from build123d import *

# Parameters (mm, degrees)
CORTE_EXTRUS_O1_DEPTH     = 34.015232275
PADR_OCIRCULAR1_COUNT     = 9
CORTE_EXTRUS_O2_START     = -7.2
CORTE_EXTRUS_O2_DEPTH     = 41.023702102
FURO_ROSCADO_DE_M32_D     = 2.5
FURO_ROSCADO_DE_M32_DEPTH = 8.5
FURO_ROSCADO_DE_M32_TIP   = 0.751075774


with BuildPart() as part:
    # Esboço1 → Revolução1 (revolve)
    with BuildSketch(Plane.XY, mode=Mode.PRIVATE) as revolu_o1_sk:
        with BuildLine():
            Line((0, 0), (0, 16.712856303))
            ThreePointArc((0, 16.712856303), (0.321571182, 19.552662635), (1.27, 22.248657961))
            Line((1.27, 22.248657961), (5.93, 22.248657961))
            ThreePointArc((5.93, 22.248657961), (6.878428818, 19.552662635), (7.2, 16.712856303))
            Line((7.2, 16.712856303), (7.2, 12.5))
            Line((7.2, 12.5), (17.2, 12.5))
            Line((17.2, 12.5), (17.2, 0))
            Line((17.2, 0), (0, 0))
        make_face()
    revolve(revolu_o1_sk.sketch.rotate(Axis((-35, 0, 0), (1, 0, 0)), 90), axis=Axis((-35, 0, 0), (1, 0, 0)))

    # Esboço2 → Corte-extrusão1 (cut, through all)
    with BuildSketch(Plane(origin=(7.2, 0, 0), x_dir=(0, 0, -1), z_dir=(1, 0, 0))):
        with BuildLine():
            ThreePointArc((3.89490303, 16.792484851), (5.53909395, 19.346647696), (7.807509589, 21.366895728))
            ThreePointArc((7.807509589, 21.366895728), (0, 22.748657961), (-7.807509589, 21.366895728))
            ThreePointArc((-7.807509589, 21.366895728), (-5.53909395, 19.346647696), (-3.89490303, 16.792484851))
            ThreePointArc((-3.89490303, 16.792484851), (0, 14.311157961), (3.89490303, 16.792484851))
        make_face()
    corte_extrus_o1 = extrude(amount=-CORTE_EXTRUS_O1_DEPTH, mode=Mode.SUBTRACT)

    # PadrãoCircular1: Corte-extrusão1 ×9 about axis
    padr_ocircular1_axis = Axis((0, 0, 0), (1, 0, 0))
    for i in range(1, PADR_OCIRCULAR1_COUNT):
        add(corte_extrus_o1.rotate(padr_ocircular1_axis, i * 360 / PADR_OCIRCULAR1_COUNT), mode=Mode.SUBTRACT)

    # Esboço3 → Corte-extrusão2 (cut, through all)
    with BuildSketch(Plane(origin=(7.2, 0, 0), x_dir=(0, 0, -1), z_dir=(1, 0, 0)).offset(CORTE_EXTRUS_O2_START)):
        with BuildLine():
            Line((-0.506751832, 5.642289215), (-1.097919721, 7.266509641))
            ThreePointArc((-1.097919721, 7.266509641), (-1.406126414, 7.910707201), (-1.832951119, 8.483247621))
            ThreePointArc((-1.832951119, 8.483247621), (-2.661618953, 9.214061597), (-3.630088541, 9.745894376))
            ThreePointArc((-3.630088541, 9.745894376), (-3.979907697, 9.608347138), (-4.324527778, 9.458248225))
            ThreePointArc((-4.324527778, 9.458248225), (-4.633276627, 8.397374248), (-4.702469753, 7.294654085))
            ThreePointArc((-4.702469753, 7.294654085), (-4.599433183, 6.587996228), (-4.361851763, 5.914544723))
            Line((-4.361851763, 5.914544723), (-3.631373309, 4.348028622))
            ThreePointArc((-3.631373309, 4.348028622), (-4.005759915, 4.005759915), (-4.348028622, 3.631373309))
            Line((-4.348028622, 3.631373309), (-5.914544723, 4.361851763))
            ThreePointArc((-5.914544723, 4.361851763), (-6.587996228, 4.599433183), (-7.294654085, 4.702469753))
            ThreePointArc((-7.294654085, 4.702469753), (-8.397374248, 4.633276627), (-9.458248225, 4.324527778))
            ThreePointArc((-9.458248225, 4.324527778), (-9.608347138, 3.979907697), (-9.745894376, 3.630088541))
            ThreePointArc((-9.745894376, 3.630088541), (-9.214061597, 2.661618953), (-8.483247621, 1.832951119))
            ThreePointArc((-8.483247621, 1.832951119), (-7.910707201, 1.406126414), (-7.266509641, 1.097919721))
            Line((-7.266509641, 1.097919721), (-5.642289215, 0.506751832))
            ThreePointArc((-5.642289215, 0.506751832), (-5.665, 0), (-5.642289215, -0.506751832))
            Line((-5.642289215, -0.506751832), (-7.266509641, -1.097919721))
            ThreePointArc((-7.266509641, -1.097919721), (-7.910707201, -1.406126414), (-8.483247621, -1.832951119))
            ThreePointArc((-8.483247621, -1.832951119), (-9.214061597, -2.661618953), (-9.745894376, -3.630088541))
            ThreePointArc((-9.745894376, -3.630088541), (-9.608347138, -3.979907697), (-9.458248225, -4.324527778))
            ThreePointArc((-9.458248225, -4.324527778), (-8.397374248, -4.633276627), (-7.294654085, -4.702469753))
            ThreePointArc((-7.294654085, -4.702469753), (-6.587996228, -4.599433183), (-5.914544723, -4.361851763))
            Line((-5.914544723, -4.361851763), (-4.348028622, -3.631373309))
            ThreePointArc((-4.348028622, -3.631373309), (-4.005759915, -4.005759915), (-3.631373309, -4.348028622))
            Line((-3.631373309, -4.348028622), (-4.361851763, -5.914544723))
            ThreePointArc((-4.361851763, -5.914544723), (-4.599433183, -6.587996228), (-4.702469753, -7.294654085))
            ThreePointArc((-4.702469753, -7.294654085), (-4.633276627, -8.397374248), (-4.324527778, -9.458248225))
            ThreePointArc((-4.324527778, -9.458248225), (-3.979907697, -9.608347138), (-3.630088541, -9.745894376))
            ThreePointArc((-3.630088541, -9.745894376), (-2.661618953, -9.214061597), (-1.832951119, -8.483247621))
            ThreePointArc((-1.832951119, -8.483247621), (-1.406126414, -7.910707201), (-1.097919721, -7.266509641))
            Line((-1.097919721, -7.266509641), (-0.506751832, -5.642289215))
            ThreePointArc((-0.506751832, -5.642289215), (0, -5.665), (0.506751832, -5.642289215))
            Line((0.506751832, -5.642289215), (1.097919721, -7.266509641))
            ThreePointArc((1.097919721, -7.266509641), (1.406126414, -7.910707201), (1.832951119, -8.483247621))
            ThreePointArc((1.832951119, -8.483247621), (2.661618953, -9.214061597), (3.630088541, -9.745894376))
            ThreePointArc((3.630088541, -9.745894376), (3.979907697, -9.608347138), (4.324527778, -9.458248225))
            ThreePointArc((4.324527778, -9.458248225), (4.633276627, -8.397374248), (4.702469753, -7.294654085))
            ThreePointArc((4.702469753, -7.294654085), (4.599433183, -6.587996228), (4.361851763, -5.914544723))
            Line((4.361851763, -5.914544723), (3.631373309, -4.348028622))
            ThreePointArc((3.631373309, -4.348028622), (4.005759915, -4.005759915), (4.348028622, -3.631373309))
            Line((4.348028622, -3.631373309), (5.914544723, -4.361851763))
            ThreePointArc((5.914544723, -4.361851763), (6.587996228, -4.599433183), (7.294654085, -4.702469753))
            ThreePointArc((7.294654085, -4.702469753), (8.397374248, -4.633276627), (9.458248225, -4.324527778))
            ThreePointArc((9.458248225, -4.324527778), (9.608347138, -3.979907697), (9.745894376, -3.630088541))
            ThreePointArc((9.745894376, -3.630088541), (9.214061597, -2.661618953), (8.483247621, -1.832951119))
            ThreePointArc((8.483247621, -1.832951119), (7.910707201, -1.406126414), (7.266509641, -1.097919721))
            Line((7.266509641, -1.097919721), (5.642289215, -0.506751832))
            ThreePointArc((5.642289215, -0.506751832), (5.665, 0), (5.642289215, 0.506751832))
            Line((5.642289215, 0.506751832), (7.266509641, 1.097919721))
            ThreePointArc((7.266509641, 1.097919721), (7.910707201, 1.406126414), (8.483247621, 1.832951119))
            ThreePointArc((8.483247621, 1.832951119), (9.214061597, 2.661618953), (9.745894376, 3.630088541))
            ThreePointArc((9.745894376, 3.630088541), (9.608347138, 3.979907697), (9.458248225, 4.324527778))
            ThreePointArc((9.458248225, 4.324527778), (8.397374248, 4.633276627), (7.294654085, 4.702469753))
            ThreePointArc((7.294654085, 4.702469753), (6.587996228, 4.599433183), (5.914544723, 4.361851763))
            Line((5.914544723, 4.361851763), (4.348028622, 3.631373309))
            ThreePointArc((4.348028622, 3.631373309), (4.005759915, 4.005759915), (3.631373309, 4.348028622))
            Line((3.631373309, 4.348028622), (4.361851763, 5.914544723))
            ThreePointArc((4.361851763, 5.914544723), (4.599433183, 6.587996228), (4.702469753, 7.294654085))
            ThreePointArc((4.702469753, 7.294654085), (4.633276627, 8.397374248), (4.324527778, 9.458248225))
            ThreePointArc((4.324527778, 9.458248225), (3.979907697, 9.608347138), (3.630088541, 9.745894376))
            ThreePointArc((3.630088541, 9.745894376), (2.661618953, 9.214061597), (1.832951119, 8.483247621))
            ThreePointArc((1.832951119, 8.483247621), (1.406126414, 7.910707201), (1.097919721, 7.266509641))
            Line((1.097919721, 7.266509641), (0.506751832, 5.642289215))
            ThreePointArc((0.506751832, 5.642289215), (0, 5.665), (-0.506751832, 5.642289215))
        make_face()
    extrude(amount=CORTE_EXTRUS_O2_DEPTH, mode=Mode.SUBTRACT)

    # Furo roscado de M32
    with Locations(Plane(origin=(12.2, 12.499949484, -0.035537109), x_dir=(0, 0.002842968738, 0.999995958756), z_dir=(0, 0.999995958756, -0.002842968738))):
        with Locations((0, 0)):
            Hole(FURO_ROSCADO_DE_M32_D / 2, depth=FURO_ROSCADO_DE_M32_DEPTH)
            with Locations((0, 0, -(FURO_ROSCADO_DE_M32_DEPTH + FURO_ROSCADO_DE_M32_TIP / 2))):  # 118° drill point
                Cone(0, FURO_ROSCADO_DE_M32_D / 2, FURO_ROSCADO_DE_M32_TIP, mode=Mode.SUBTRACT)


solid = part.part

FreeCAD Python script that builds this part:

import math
import FreeCAD as App
import Part
import Sketcher

V = App.Vector
Q = App.Units.Quantity

doc = App.newDocument("Part")
params = doc.addObject("Spreadsheet::Sheet", "Params")
for row, (alias, value) in enumerate([
    ("sketch1_radius", "12.7 mm"),
    ("sketch1_width", "10 mm"),
    ("sketch1_width2", "17.2 mm"),
    ("sketch1_height", "12.5 mm"),
    ("sketch1_width3", "4.66 mm"),
    ("revolution_angle", "360 deg"),
    ("sketch3_radius", "10.4 mm"),
    ("sketch3_radius2", "3.68 mm"),
    ("sketch3_radius3", "5.02 mm"),
    ("sketch4_diameter", "2.5 mm"),
    ("hole_diameter", "2.5 mm"),
    ("hole_depth", "8.5 mm"),
], start=1):
    params.set(f"A{row}", alias)
    params.set(f"B{row}", "=" + value)
    params.setAlias(f"B{row}", alias)

body = doc.addObject("PartDesign::Body", "Body")

# Sketch on XY plane
sketch1 = doc.addObject("Sketcher::SketchObject", "Sketch")
body.addObject(sketch1)
sketch1.AttachmentSupport = (doc.XY_Plane, [""])
sketch1.MapMode = "FlatFace"
sketch1.addGeometry([
    Part.LineSegment(V(0, 16.712856, 0), V(0, 0, 0)),  # 0
    Part.LineSegment(V(0, 0, 0), V(17.2, 0, 0)),  # 1
    Part.LineSegment(V(17.2, 0, 0), V(17.2, 12.5, 0)),  # 2
    Part.LineSegment(V(17.2, 12.5, 0), V(7.2, 12.5, 0)),  # 3
    Part.LineSegment(V(7.2, 12.5, 0), V(7.2, 16.712856, 0)),  # 4
    Part.ArcOfCircle(Part.Circle(V(-5.5, 16.712856, 0), V(0, 0, 1), 12.7), math.radians(0), math.radians(25.841933)),  # 5
    Part.LineSegment(V(5.93, 22.248658, 0), V(1.27, 22.248658, 0)),  # 6
    Part.ArcOfCircle(Part.Circle(V(12.7, 16.712856, 0), V(0, 0, 1), 12.7), math.radians(154.158067), math.radians(180)),  # 7
], False)
sketch1.addConstraint([
    Sketcher.Constraint("Coincident", 0, 2, 1, 1),
    Sketcher.Constraint("Coincident", 1, 2, 2, 1),
    Sketcher.Constraint("Coincident", 2, 2, 3, 1),
    Sketcher.Constraint("Coincident", 3, 2, 4, 1),
    Sketcher.Constraint("Tangent", 4, 2, 5, 1),
    Sketcher.Constraint("Coincident", 5, 2, 6, 1),
    Sketcher.Constraint("Coincident", 6, 2, 7, 1),
    Sketcher.Constraint("Tangent", 7, 2, 0, 1),
    Sketcher.Constraint("Vertical", 0),
    Sketcher.Constraint("Horizontal", 1),
    Sketcher.Constraint("Vertical", 2),
    Sketcher.Constraint("Horizontal", 3),
    Sketcher.Constraint("Vertical", 4),
    Sketcher.Constraint("Horizontal", 6),
    Sketcher.Constraint("Coincident", 0, 2, -1, 1),
    Sketcher.Constraint("Equal", 5, 7),
    Sketcher.Constraint("Horizontal", 5, 3, 7, 3),
    Sketcher.Constraint("Radius", 5, 12.7),
    Sketcher.Constraint("DistanceX", 3, 2, 3, 1, 10.0),
    Sketcher.Constraint("DistanceX", 1, 1, 1, 2, 17.2),
    Sketcher.Constraint("DistanceY", 2, 1, 2, 2, 12.5),
    Sketcher.Constraint("DistanceX", 6, 2, 6, 1, 4.66),
    Sketcher.Constraint("DistanceY", 0, 2, 0, 1, 16.712856),
])
sketch1.setExpression("Constraints[17]", "Params.sketch1_radius")
sketch1.setExpression("Constraints[18]", "Params.sketch1_width")
sketch1.setExpression("Constraints[19]", "Params.sketch1_width2")
sketch1.setExpression("Constraints[20]", "Params.sketch1_height")
sketch1.setExpression("Constraints[21]", "Params.sketch1_width3")
revolution = doc.addObject("PartDesign::Revolution", "Revolution")
body.addObject(revolution)
revolution.Profile = sketch1
revolution.ReferenceAxis = (sketch1, ["H_Axis"])
revolution.setExpression("Angle", "Params.revolution_angle")

# Sketch on YZ plane
sketch2 = doc.addObject("Sketcher::SketchObject", "Sketch001")
body.addObject(sketch2)
sketch2.AttachmentSupport = (doc.YZ_Plane, [""])
sketch2.MapMode = "FlatFace"
sketch2.AttachmentOffset = App.Placement(V(0, 0, 7.2), App.Rotation())
sketch2.addGeometry([
    Part.ArcOfCircle(Part.Circle(V(12.045129, -14.07564, 0), V(0, 0, 1), 11.2332), math.radians(33.917624), math.radians(65)),
    Part.ArcOfCircle(Part.Circle(V(0, 0, 0), V(0, 0, 1), 22.748658), math.radians(-20.072412), math.radians(20.072412)),
    Part.ArcOfCircle(Part.Circle(V(12.045129, 14.07564, 0), V(0, 0, 1), 11.2332), math.radians(-65), math.radians(-33.917624)),
    Part.ArcOfCircle(Part.Circle(V(18.608708, 0, 0), V(0, 0, 1), 4.29755), math.radians(115), math.radians(245)),
], False)
sketch2.addConstraint([
    Sketcher.Constraint("Coincident", 0, 1, 1, 1),
    Sketcher.Constraint("Coincident", 1, 2, 2, 2),
    Sketcher.Constraint("Tangent", 2, 1, 3, 1),
    Sketcher.Constraint("Tangent", 3, 2, 0, 2),
    Sketcher.Constraint("Coincident", 1, 3, -1, 1),
    Sketcher.Constraint("Equal", 0, 2),
    Sketcher.Constraint("Symmetric", 0, 3, 2, 3, -1),
    Sketcher.Constraint("Radius", 0, 11.2332),
    Sketcher.Constraint("Radius", 3, 4.29755),
    Sketcher.Constraint("Radius", 1, 22.748658),
    Sketcher.Constraint("DistanceX", -1, 1, 0, 3, 12.045129),
    Sketcher.Constraint("DistanceY", 0, 3, -1, 1, 14.07564),
])
pocket1 = doc.addObject("PartDesign::Pocket", "Pocket")
body.addObject(pocket1)
pocket1.Profile = sketch2
pocket1.Type = "ThroughAll"
doc.recompute()

polarpattern = doc.addObject("PartDesign::PolarPattern", "PolarPattern")
body.addObject(polarpattern)
polarpattern.Originals = [pocket1]
polarpattern.Axis = (doc.X_Axis, [""])
polarpattern.Angle = 360
polarpattern.Occurrences = 9
body.Tip = polarpattern

# Sketch on YZ plane
sketch3 = doc.addObject("Sketcher::SketchObject", "Sketch002")
body.addObject(sketch3)
sketch3.AttachmentSupport = (doc.YZ_Plane, [""])
sketch3.MapMode = "FlatFace"
sketch3.addGeometry([
    Part.LineSegment(V(5.642289, 0.506752, 0), V(7.26651, 1.09792, 0)),  # 0
    Part.ArcOfCircle(Part.Circle(V(6.007876, 4.555989, 0), V(0, 0, 1), 3.68), math.radians(-70), math.radians(-47.727653)),  # 1
    Part.ArcOfCircle(Part.Circle(V(5.106517, 5.547529, 0), V(0, 0, 1), 5.02), math.radians(-47.727653), math.radians(-22.455163)),  # 2
    Part.ArcOfCircle(Part.Circle(V(0, 0, 0), V(0, 0, 1), 10.4), math.radians(20.429035), math.radians(24.570965)),  # 3
    Part.ArcOfCircle(Part.Circle(V(7.533549, -0.311843, 0), V(0, 0, 1), 5.02), math.radians(67.455163), math.radians(92.727653)),  # 4
    Part.ArcOfCircle(Part.Circle(V(7.46978, 1.026639, 0), V(0, 0, 1), 3.68), math.radians(92.727653), math.radians(115)),  # 5
    Part.LineSegment(V(5.914545, 4.361852, 0), V(4.348029, 3.631373, 0)),  # 6
    Part.ArcOfCircle(Part.Circle(V(0, 0, 0), V(0, 0, 1), 5.665), math.radians(39.867855), math.radians(50.132145)),  # 7
    Part.LineSegment(V(3.631373, 4.348029, 0), V(4.361852, 5.914545, 0)),  # 8
    Part.ArcOfCircle(Part.Circle(V(1.026639, 7.46978, 0), V(0, 0, 1), 3.68), math.radians(-25), math.radians(-2.727653)),  # 9
    Part.ArcOfCircle(Part.Circle(V(-0.311843, 7.533549, 0), V(0, 0, 1), 5.02), math.radians(-2.727653), math.radians(22.544837)),  # 10
    Part.ArcOfCircle(Part.Circle(V(0, 0, 0), V(0, 0, 1), 10.4), math.radians(65.429035), math.radians(69.570965)),  # 11
    Part.ArcOfCircle(Part.Circle(V(5.547529, 5.106517, 0), V(0, 0, 1), 5.02), math.radians(112.455163), math.radians(137.727653)),  # 12
    Part.ArcOfCircle(Part.Circle(V(4.555989, 6.007876, 0), V(0, 0, 1), 3.68), math.radians(137.727653), math.radians(160)),  # 13
    Part.LineSegment(V(1.09792, 7.26651, 0), V(0.506752, 5.642289, 0)),  # 14
    Part.ArcOfCircle(Part.Circle(V(0, 0, 0), V(0, 0, 1), 5.665), math.radians(84.867855), math.radians(95.132145)),  # 15
    Part.LineSegment(V(-0.506752, 5.642289, 0), V(-1.09792, 7.26651, 0)),  # 16
    Part.ArcOfCircle(Part.Circle(V(-4.555989, 6.007876, 0), V(0, 0, 1), 3.68), math.radians(20), math.radians(42.272347)),  # 17
    Part.ArcOfCircle(Part.Circle(V(-5.547529, 5.106517, 0), V(0, 0, 1), 5.02), math.radians(42.272347), math.radians(67.544837)),  # 18
    Part.ArcOfCircle(Part.Circle(V(0, 0, 0), V(0, 0, 1), 10.4), math.radians(110.429035), math.radians(114.570965)),  # 19
    Part.ArcOfCircle(Part.Circle(V(0.311843, 7.533549, 0), V(0, 0, 1), 5.02), math.radians(157.455163), math.radians(182.727653)),  # 20
    Part.ArcOfCircle(Part.Circle(V(-1.026639, 7.46978, 0), V(0, 0, 1), 3.68), math.radians(-177.272347), math.radians(-155)),  # 21
    Part.LineSegment(V(-4.361852, 5.914545, 0), V(-3.631373, 4.348029, 0)),  # 22
    Part.ArcOfCircle(Part.Circle(V(0, 0, 0), V(0, 0, 1), 5.665), math.radians(129.867855), math.radians(140.132145)),  # 23
    Part.LineSegment(V(-4.348029, 3.631373, 0), V(-5.914545, 4.361852, 0)),  # 24
    Part.ArcOfCircle(Part.Circle(V(-7.46978, 1.026639, 0), V(0, 0, 1), 3.68), math.radians(65), math.radians(87.272347)),  # 25
    Part.ArcOfCircle(Part.Circle(V(-7.533549, -0.311843, 0), V(0, 0, 1), 5.02), math.radians(87.272347), math.radians(112.544837)),  # 26
    Part.ArcOfCircle(Part.Circle(V(0, 0, 0), V(0, 0, 1), 10.4), math.radians(155.429035), math.radians(159.570965)),  # 27
    Part.ArcOfCircle(Part.Circle(V(-5.106517, 5.547529, 0), V(0, 0, 1), 5.02), math.radians(-157.544837), math.radians(-132.272347)),  # 28
    Part.ArcOfCircle(Part.Circle(V(-6.007876, 4.555989, 0), V(0, 0, 1), 3.68), math.radians(-132.272347), math.radians(-110)),  # 29
    Part.LineSegment(V(-7.26651, 1.09792, 0), V(-5.642289, 0.506752, 0)),  # 30
    Part.ArcOfCircle(Part.Circle(V(0, 0, 0), V(0, 0, 1), 5.665), math.radians(174.867855), math.radians(185.132145)),  # 31
    Part.LineSegment(V(-5.642289, -0.506752, 0), V(-7.26651, -1.09792, 0)),  # 32
    Part.ArcOfCircle(Part.Circle(V(-6.007876, -4.555989, 0), V(0, 0, 1), 3.68), math.radians(110), math.radians(132.272347)),  # 33
    Part.ArcOfCircle(Part.Circle(V(-5.106517, -5.547529, 0), V(0, 0, 1), 5.02), math.radians(132.272347), math.radians(157.544837)),  # 34
    Part.ArcOfCircle(Part.Circle(V(0, 0, 0), V(0, 0, 1), 10.4), math.radians(-159.570965), math.radians(-155.429035)),  # 35
    Part.ArcOfCircle(Part.Circle(V(-7.533549, 0.311843, 0), V(0, 0, 1), 5.02), math.radians(-112.544837), math.radians(-87.272347)),  # 36
    Part.ArcOfCircle(Part.Circle(V(-7.46978, -1.026639, 0), V(0, 0, 1), 3.68), math.radians(-87.272347), math.radians(-65)),  # 37
    Part.LineSegment(V(-5.914545, -4.361852, 0), V(-4.348029, -3.631373, 0)),  # 38
    Part.ArcOfCircle(Part.Circle(V(0, 0, 0), V(0, 0, 1), 5.665), math.radians(-140.132145), math.radians(-129.867855)),  # 39
    Part.LineSegment(V(-3.631373, -4.348029, 0), V(-4.361852, -5.914545, 0)),  # 40
    Part.ArcOfCircle(Part.Circle(V(-1.026639, -7.46978, 0), V(0, 0, 1), 3.68), math.radians(155), math.radians(177.272347)),  # 41
    Part.ArcOfCircle(Part.Circle(V(0.311843, -7.533549, 0), V(0, 0, 1), 5.02), math.radians(177.272347), math.radians(202.544837)),  # 42
    Part.ArcOfCircle(Part.Circle(V(0, 0, 0), V(0, 0, 1), 10.4), math.radians(-114.570965), math.radians(-110.429035)),  # 43
    Part.ArcOfCircle(Part.Circle(V(-5.547529, -5.106517, 0), V(0, 0, 1), 5.02), math.radians(-67.544837), math.radians(-42.272347)),  # 44
    Part.ArcOfCircle(Part.Circle(V(-4.555989, -6.007876, 0), V(0, 0, 1), 3.68), math.radians(-42.272347), math.radians(-20)),  # 45
    Part.LineSegment(V(-1.09792, -7.26651, 0), V(-0.506752, -5.642289, 0)),  # 46
    Part.ArcOfCircle(Part.Circle(V(0, 0, 0), V(0, 0, 1), 5.665), math.radians(-95.132145), math.radians(-84.867855)),  # 47
    Part.LineSegment(V(0.506752, -5.642289, 0), V(1.09792, -7.26651, 0)),  # 48
    Part.ArcOfCircle(Part.Circle(V(4.555989, -6.007876, 0), V(0, 0, 1), 3.68), math.radians(-160), math.radians(-137.727653)),  # 49
    Part.ArcOfCircle(Part.Circle(V(5.547529, -5.106517, 0), V(0, 0, 1), 5.02), math.radians(-137.727653), math.radians(-112.455163)),  # 50
    Part.ArcOfCircle(Part.Circle(V(0, 0, 0), V(0, 0, 1), 10.4), math.radians(-69.570965), math.radians(-65.429035)),  # 51
    Part.ArcOfCircle(Part.Circle(V(-0.311843, -7.533549, 0), V(0, 0, 1), 5.02), math.radians(-22.544837), math.radians(2.727653)),  # 52
    Part.ArcOfCircle(Part.Circle(V(1.026639, -7.46978, 0), V(0, 0, 1), 3.68), math.radians(2.727653), math.radians(25)),  # 53
    Part.LineSegment(V(4.361852, -5.914545, 0), V(3.631373, -4.348029, 0)),  # 54
    Part.ArcOfCircle(Part.Circle(V(0, 0, 0), V(0, 0, 1), 5.665), math.radians(-50.132145), math.radians(-39.867855)),  # 55
    Part.LineSegment(V(4.348029, -3.631373, 0), V(5.914545, -4.361852, 0)),  # 56
    Part.ArcOfCircle(Part.Circle(V(7.46978, -1.026639, 0), V(0, 0, 1), 3.68), math.radians(-115), math.radians(-92.727653)),  # 57
    Part.ArcOfCircle(Part.Circle(V(7.533549, 0.311843, 0), V(0, 0, 1), 5.02), math.radians(-92.727653), math.radians(-67.455163)),  # 58
    Part.ArcOfCircle(Part.Circle(V(0, 0, 0), V(0, 0, 1), 10.4), math.radians(-24.570965), math.radians(-20.429035)),  # 59
    Part.ArcOfCircle(Part.Circle(V(5.106517, -5.547529, 0), V(0, 0, 1), 5.02), math.radians(22.455163), math.radians(47.727653)),  # 60
    Part.ArcOfCircle(Part.Circle(V(6.007876, -4.555989, 0), V(0, 0, 1), 3.68), math.radians(47.727653), math.radians(70)),  # 61
    Part.LineSegment(V(7.26651, -1.09792, 0), V(5.642289, -0.506752, 0)),  # 62
    Part.ArcOfCircle(Part.Circle(V(0, 0, 0), V(0, 0, 1), 5.665), math.radians(-5.132145), math.radians(5.132145)),  # 63
], False)
sketch3.addConstraint([
    Sketcher.Constraint("Tangent", 0, 2, 1, 1),
    Sketcher.Constraint("Tangent", 1, 2, 2, 1),
    Sketcher.Constraint("Coincident", 2, 2, 3, 1),
    Sketcher.Constraint("Coincident", 3, 2, 4, 1),
    Sketcher.Constraint("Tangent", 4, 2, 5, 1),
    Sketcher.Constraint("Tangent", 5, 2, 6, 1),
    Sketcher.Constraint("Coincident", 6, 2, 7, 1),
    Sketcher.Constraint("Coincident", 7, 2, 8, 1),
    Sketcher.Constraint("Tangent", 8, 2, 9, 1),
    Sketcher.Constraint("Tangent", 9, 2, 10, 1),
    Sketcher.Constraint("Coincident", 10, 2, 11, 1),
    Sketcher.Constraint("Coincident", 11, 2, 12, 1),
    Sketcher.Constraint("Tangent", 12, 2, 13, 1),
    Sketcher.Constraint("Tangent", 13, 2, 14, 1),
    Sketcher.Constraint("Coincident", 14, 2, 15, 1),
    Sketcher.Constraint("Coincident", 15, 2, 16, 1),
    Sketcher.Constraint("Tangent", 16, 2, 17, 1),
    Sketcher.Constraint("Tangent", 17, 2, 18, 1),
    Sketcher.Constraint("Coincident", 18, 2, 19, 1),
    Sketcher.Constraint("Coincident", 19, 2, 20, 1),
    Sketcher.Constraint("Tangent", 20, 2, 21, 1),
    Sketcher.Constraint("Tangent", 21, 2, 22, 1),
    Sketcher.Constraint("Coincident", 22, 2, 23, 1),
    Sketcher.Constraint("Coincident", 23, 2, 24, 1),
    Sketcher.Constraint("Tangent", 24, 2, 25, 1),
    Sketcher.Constraint("Tangent", 25, 2, 26, 1),
    Sketcher.Constraint("Coincident", 26, 2, 27, 1),
    Sketcher.Constraint("Coincident", 27, 2, 28, 1),
    Sketcher.Constraint("Tangent", 28, 2, 29, 1),
    Sketcher.Constraint("Tangent", 29, 2, 30, 1),
    Sketcher.Constraint("Coincident", 30, 2, 31, 1),
    Sketcher.Constraint("Coincident", 31, 2, 32, 1),
    Sketcher.Constraint("Tangent", 32, 2, 33, 1),
    Sketcher.Constraint("Tangent", 33, 2, 34, 1),
    Sketcher.Constraint("Coincident", 34, 2, 35, 1),
    Sketcher.Constraint("Coincident", 35, 2, 36, 1),
    Sketcher.Constraint("Tangent", 36, 2, 37, 1),
    Sketcher.Constraint("Tangent", 37, 2, 38, 1),
    Sketcher.Constraint("Coincident", 38, 2, 39, 1),
    Sketcher.Constraint("Coincident", 39, 2, 40, 1),
    Sketcher.Constraint("Tangent", 40, 2, 41, 1),
    Sketcher.Constraint("Tangent", 41, 2, 42, 1),
    Sketcher.Constraint("Coincident", 42, 2, 43, 1),
    Sketcher.Constraint("Coincident", 43, 2, 44, 1),
    Sketcher.Constraint("Tangent", 44, 2, 45, 1),
    Sketcher.Constraint("Tangent", 45, 2, 46, 1),
    Sketcher.Constraint("Coincident", 46, 2, 47, 1),
    Sketcher.Constraint("Coincident", 47, 2, 48, 1),
    Sketcher.Constraint("Tangent", 48, 2, 49, 1),
    Sketcher.Constraint("Tangent", 49, 2, 50, 1),
    Sketcher.Constraint("Coincident", 50, 2, 51, 1),
    Sketcher.Constraint("Coincident", 51, 2, 52, 1),
    Sketcher.Constraint("Tangent", 52, 2, 53, 1),
    Sketcher.Constraint("Tangent", 53, 2, 54, 1),
    Sketcher.Constraint("Coincident", 54, 2, 55, 1),
    Sketcher.Constraint("Coincident", 55, 2, 56, 1),
    Sketcher.Constraint("Tangent", 56, 2, 57, 1),
    Sketcher.Constraint("Tangent", 57, 2, 58, 1),
    Sketcher.Constraint("Coincident", 58, 2, 59, 1),
    Sketcher.Constraint("Coincident", 59, 2, 60, 1),
    Sketcher.Constraint("Tangent", 60, 2, 61, 1),
    Sketcher.Constraint("Tangent", 61, 2, 62, 1),
    Sketcher.Constraint("Coincident", 62, 2, 63, 1),
    Sketcher.Constraint("Coincident", 63, 2, 0, 1),
    Sketcher.Constraint("Coincident", 3, 3, -1, 1),
    Sketcher.Constraint("Coincident", 7, 3, -1, 1),
    Sketcher.Constraint("Coincident", 11, 3, -1, 1),
    Sketcher.Constraint("Coincident", 15, 3, -1, 1),
    Sketcher.Constraint("Coincident", 19, 3, -1, 1),
    Sketcher.Constraint("Coincident", 23, 3, -1, 1),
    Sketcher.Constraint("Coincident", 27, 3, -1, 1),
    Sketcher.Constraint("Coincident", 31, 3, -1, 1),
    Sketcher.Constraint("Coincident", 35, 3, -1, 1),
    Sketcher.Constraint("Coincident", 39, 3, -1, 1),
    Sketcher.Constraint("Coincident", 43, 3, -1, 1),
    Sketcher.Constraint("Coincident", 47, 3, -1, 1),
    Sketcher.Constraint("Coincident", 51, 3, -1, 1),
    Sketcher.Constraint("Coincident", 55, 3, -1, 1),
    Sketcher.Constraint("Coincident", 59, 3, -1, 1),
    Sketcher.Constraint("Coincident", 63, 3, -1, 1),
    Sketcher.Constraint("Equal", 2, 4),
    Sketcher.Constraint("Equal", 1, 5),
    Sketcher.Constraint("Equal", 5, 9),
    Sketcher.Constraint("Equal", 4, 10),
    Sketcher.Constraint("Equal", 3, 11),
    Sketcher.Constraint("Equal", 10, 12),
    Sketcher.Constraint("Equal", 9, 13),
    Sketcher.Constraint("Equal", 7, 15),
    Sketcher.Constraint("Equal", 13, 17),
    Sketcher.Constraint("Equal", 12, 18),
    Sketcher.Constraint("Equal", 11, 19),
    Sketcher.Constraint("Equal", 18, 20),
    Sketcher.Constraint("Equal", 17, 21),
    Sketcher.Constraint("Equal", 15, 23),
    Sketcher.Constraint("Equal", 21, 25),
    Sketcher.Constraint("Equal", 20, 26),
    Sketcher.Constraint("Equal", 19, 27),
    Sketcher.Constraint("Equal", 26, 28),
    Sketcher.Constraint("Equal", 25, 29),
    Sketcher.Constraint("Equal", 23, 31),
    Sketcher.Constraint("Equal", 29, 33),
    Sketcher.Constraint("Equal", 28, 34),
    Sketcher.Constraint("Equal", 27, 35),
    Sketcher.Constraint("Equal", 34, 36),
    Sketcher.Constraint("Equal", 33, 37),
    Sketcher.Constraint("Equal", 31, 39),
    Sketcher.Constraint("Equal", 37, 41),
    Sketcher.Constraint("Equal", 36, 42),
    Sketcher.Constraint("Equal", 35, 43),
    Sketcher.Constraint("Equal", 42, 44),
    Sketcher.Constraint("Equal", 41, 45),
    Sketcher.Constraint("Equal", 39, 47),
    Sketcher.Constraint("Equal", 45, 49),
    Sketcher.Constraint("Equal", 44, 50),
    Sketcher.Constraint("Equal", 43, 51),
    Sketcher.Constraint("Equal", 50, 52),
    Sketcher.Constraint("Equal", 49, 53),
    Sketcher.Constraint("Equal", 47, 55),
    Sketcher.Constraint("Equal", 53, 57),
    Sketcher.Constraint("Equal", 52, 58),
    Sketcher.Constraint("Equal", 51, 59),
    Sketcher.Constraint("Equal", 58, 60),
    Sketcher.Constraint("Equal", 57, 61),
    Sketcher.Constraint("Equal", 55, 63),
    Sketcher.Constraint("Symmetric", 1, 3, 33, 3, -1, 1),
    Sketcher.Constraint("Symmetric", 4, 3, 36, 3, -1, 1),
    Sketcher.Constraint("Symmetric", 9, 3, 41, 3, -1, 1),
    Sketcher.Constraint("Symmetric", 12, 3, 44, 3, -1, 1),
    Sketcher.Constraint("Symmetric", 17, 3, 49, 3, -1, 1),
    Sketcher.Constraint("Symmetric", 20, 3, 52, 3, -1, 1),
    Sketcher.Constraint("Symmetric", 25, 3, 57, 3, -1, 1),
    Sketcher.Constraint("Symmetric", 28, 3, 60, 3, -1, 1),
    Sketcher.Constraint("Symmetric", 5, 2, 37, 2, -1, 1),
    Sketcher.Constraint("Symmetric", 13, 2, 45, 2, -1, 1),
    Sketcher.Constraint("Symmetric", 21, 2, 53, 2, -1, 1),
    Sketcher.Constraint("Symmetric", 29, 2, 61, 2, -1, 1),
    Sketcher.Constraint("Symmetric", 13, 3, 17, 3, -2),
    Sketcher.Constraint("Symmetric", 10, 3, 20, 3, -2),
    Sketcher.Constraint("Symmetric", 5, 3, 25, 3, -2),
    Sketcher.Constraint("Symmetric", 2, 3, 28, 3, -2),
    Sketcher.Constraint("Symmetric", 8, 2, 21, 2, -2),
    Sketcher.Constraint("Symmetric", 0, 2, 29, 2, -2),
    Sketcher.Constraint("Perpendicular", 0, 16),
    Sketcher.Constraint("Perpendicular", 6, 22),
    Sketcher.Constraint("Perpendicular", 8, 24),
    Sketcher.Constraint("Perpendicular", 14, 30),
    Sketcher.Constraint("Perpendicular", 16, 32),
    Sketcher.Constraint("Perpendicular", 24, 40),
    Sketcher.Constraint("Perpendicular", 32, 48),
    Sketcher.Constraint("Perpendicular", 40, 56),
    Sketcher.Constraint("Horizontal", 12, 3, 18, 3),
    Sketcher.Constraint("Horizontal", 4, 3, 26, 3),
    Sketcher.Constraint("Horizontal", 44, 3, 50, 3),
    Sketcher.Constraint("Horizontal", 42, 3, 52, 3),
    Sketcher.Constraint("Horizontal", 36, 3, 58, 3),
    Sketcher.Constraint("Horizontal", 34, 3, 60, 3),
    Sketcher.Constraint("Equal", 0, 6),
    Sketcher.Constraint("Equal", 6, 8),
    Sketcher.Constraint("Equal", 8, 14),
    Sketcher.Constraint("Radius", 3, 10.4),
    Sketcher.Constraint("Angle", 0, Q("20 deg")),
    Sketcher.Constraint("Angle", 6, Q("-155 deg")),
    Sketcher.Constraint("Radius", 1, 3.68),
    Sketcher.Constraint("Radius", 2, 5.02),
    Sketcher.Constraint("Radius", 7, 5.665),
    Sketcher.Constraint("Distance", 0, 1.728459),
    Sketcher.Constraint("DistanceY", -1, 1, 1, 3, 4.555989),
    Sketcher.Constraint("DistanceY", -1, 1, 2, 3, 5.547529),
    Sketcher.Constraint("DistanceX", -1, 1, 4, 3, 7.533549),
    Sketcher.Constraint("DistanceX", -1, 1, 5, 3, 7.46978),
    Sketcher.Constraint("DistanceX", -1, 1, 9, 3, 1.026639),
    Sketcher.Constraint("DistanceY", -1, 1, 10, 3, 7.533549),
    Sketcher.Constraint("DistanceX", -1, 1, 12, 3, 5.547529),
    Sketcher.Constraint("DistanceX", -1, 1, 13, 3, 4.555989),
])
sketch3.setExpression("Constraints[159]", "Params.sketch3_radius")
sketch3.setExpression("Constraints[162]", "Params.sketch3_radius2")
sketch3.setExpression("Constraints[163]", "Params.sketch3_radius3")
pocket2 = doc.addObject("PartDesign::Pocket", "Pocket001")
body.addObject(pocket2)
pocket2.Profile = sketch3
pocket2.Type = "ThroughAll"
pocket2.Reversed = True

# Sketch on an angled plane
sketch4 = doc.addObject("Sketcher::SketchObject", "Sketch003")
body.addObject(sketch4)
sketch4.Placement = App.Placement(V(0, 12.499949, -0.035537), App.Rotation(V(0, 0.002842969, 0.999995959), V(1, 0, 0), V(0, 0.999995959, -0.002842969), "ZXY"))
sketch4.addGeometry(Part.Circle(V(0, 12.2, 0), V(0, 0, 1), 1.25), False)
sketch4.addConstraint([
    Sketcher.Constraint("PointOnObject", 0, 3, -2),
    Sketcher.Constraint("Diameter", 0, 2.5),
    Sketcher.Constraint("DistanceY", -1, 1, 0, 3, 12.2),
])
sketch4.setExpression("Constraints[1]", "Params.sketch4_diameter")
doc.recompute()
hole = doc.addObject("PartDesign::Hole", "Hole")
body.addObject(hole)
hole.Profile = sketch4
hole.ThreadType = "None"
hole.setExpression("Diameter", "Params.hole_diameter")
hole.DepthType = "Dimension"
hole.setExpression("Depth", "Params.hole_depth")
hole.DrillPoint = "Angled"
hole.DrillPointAngle = 118

doc.recompute()
